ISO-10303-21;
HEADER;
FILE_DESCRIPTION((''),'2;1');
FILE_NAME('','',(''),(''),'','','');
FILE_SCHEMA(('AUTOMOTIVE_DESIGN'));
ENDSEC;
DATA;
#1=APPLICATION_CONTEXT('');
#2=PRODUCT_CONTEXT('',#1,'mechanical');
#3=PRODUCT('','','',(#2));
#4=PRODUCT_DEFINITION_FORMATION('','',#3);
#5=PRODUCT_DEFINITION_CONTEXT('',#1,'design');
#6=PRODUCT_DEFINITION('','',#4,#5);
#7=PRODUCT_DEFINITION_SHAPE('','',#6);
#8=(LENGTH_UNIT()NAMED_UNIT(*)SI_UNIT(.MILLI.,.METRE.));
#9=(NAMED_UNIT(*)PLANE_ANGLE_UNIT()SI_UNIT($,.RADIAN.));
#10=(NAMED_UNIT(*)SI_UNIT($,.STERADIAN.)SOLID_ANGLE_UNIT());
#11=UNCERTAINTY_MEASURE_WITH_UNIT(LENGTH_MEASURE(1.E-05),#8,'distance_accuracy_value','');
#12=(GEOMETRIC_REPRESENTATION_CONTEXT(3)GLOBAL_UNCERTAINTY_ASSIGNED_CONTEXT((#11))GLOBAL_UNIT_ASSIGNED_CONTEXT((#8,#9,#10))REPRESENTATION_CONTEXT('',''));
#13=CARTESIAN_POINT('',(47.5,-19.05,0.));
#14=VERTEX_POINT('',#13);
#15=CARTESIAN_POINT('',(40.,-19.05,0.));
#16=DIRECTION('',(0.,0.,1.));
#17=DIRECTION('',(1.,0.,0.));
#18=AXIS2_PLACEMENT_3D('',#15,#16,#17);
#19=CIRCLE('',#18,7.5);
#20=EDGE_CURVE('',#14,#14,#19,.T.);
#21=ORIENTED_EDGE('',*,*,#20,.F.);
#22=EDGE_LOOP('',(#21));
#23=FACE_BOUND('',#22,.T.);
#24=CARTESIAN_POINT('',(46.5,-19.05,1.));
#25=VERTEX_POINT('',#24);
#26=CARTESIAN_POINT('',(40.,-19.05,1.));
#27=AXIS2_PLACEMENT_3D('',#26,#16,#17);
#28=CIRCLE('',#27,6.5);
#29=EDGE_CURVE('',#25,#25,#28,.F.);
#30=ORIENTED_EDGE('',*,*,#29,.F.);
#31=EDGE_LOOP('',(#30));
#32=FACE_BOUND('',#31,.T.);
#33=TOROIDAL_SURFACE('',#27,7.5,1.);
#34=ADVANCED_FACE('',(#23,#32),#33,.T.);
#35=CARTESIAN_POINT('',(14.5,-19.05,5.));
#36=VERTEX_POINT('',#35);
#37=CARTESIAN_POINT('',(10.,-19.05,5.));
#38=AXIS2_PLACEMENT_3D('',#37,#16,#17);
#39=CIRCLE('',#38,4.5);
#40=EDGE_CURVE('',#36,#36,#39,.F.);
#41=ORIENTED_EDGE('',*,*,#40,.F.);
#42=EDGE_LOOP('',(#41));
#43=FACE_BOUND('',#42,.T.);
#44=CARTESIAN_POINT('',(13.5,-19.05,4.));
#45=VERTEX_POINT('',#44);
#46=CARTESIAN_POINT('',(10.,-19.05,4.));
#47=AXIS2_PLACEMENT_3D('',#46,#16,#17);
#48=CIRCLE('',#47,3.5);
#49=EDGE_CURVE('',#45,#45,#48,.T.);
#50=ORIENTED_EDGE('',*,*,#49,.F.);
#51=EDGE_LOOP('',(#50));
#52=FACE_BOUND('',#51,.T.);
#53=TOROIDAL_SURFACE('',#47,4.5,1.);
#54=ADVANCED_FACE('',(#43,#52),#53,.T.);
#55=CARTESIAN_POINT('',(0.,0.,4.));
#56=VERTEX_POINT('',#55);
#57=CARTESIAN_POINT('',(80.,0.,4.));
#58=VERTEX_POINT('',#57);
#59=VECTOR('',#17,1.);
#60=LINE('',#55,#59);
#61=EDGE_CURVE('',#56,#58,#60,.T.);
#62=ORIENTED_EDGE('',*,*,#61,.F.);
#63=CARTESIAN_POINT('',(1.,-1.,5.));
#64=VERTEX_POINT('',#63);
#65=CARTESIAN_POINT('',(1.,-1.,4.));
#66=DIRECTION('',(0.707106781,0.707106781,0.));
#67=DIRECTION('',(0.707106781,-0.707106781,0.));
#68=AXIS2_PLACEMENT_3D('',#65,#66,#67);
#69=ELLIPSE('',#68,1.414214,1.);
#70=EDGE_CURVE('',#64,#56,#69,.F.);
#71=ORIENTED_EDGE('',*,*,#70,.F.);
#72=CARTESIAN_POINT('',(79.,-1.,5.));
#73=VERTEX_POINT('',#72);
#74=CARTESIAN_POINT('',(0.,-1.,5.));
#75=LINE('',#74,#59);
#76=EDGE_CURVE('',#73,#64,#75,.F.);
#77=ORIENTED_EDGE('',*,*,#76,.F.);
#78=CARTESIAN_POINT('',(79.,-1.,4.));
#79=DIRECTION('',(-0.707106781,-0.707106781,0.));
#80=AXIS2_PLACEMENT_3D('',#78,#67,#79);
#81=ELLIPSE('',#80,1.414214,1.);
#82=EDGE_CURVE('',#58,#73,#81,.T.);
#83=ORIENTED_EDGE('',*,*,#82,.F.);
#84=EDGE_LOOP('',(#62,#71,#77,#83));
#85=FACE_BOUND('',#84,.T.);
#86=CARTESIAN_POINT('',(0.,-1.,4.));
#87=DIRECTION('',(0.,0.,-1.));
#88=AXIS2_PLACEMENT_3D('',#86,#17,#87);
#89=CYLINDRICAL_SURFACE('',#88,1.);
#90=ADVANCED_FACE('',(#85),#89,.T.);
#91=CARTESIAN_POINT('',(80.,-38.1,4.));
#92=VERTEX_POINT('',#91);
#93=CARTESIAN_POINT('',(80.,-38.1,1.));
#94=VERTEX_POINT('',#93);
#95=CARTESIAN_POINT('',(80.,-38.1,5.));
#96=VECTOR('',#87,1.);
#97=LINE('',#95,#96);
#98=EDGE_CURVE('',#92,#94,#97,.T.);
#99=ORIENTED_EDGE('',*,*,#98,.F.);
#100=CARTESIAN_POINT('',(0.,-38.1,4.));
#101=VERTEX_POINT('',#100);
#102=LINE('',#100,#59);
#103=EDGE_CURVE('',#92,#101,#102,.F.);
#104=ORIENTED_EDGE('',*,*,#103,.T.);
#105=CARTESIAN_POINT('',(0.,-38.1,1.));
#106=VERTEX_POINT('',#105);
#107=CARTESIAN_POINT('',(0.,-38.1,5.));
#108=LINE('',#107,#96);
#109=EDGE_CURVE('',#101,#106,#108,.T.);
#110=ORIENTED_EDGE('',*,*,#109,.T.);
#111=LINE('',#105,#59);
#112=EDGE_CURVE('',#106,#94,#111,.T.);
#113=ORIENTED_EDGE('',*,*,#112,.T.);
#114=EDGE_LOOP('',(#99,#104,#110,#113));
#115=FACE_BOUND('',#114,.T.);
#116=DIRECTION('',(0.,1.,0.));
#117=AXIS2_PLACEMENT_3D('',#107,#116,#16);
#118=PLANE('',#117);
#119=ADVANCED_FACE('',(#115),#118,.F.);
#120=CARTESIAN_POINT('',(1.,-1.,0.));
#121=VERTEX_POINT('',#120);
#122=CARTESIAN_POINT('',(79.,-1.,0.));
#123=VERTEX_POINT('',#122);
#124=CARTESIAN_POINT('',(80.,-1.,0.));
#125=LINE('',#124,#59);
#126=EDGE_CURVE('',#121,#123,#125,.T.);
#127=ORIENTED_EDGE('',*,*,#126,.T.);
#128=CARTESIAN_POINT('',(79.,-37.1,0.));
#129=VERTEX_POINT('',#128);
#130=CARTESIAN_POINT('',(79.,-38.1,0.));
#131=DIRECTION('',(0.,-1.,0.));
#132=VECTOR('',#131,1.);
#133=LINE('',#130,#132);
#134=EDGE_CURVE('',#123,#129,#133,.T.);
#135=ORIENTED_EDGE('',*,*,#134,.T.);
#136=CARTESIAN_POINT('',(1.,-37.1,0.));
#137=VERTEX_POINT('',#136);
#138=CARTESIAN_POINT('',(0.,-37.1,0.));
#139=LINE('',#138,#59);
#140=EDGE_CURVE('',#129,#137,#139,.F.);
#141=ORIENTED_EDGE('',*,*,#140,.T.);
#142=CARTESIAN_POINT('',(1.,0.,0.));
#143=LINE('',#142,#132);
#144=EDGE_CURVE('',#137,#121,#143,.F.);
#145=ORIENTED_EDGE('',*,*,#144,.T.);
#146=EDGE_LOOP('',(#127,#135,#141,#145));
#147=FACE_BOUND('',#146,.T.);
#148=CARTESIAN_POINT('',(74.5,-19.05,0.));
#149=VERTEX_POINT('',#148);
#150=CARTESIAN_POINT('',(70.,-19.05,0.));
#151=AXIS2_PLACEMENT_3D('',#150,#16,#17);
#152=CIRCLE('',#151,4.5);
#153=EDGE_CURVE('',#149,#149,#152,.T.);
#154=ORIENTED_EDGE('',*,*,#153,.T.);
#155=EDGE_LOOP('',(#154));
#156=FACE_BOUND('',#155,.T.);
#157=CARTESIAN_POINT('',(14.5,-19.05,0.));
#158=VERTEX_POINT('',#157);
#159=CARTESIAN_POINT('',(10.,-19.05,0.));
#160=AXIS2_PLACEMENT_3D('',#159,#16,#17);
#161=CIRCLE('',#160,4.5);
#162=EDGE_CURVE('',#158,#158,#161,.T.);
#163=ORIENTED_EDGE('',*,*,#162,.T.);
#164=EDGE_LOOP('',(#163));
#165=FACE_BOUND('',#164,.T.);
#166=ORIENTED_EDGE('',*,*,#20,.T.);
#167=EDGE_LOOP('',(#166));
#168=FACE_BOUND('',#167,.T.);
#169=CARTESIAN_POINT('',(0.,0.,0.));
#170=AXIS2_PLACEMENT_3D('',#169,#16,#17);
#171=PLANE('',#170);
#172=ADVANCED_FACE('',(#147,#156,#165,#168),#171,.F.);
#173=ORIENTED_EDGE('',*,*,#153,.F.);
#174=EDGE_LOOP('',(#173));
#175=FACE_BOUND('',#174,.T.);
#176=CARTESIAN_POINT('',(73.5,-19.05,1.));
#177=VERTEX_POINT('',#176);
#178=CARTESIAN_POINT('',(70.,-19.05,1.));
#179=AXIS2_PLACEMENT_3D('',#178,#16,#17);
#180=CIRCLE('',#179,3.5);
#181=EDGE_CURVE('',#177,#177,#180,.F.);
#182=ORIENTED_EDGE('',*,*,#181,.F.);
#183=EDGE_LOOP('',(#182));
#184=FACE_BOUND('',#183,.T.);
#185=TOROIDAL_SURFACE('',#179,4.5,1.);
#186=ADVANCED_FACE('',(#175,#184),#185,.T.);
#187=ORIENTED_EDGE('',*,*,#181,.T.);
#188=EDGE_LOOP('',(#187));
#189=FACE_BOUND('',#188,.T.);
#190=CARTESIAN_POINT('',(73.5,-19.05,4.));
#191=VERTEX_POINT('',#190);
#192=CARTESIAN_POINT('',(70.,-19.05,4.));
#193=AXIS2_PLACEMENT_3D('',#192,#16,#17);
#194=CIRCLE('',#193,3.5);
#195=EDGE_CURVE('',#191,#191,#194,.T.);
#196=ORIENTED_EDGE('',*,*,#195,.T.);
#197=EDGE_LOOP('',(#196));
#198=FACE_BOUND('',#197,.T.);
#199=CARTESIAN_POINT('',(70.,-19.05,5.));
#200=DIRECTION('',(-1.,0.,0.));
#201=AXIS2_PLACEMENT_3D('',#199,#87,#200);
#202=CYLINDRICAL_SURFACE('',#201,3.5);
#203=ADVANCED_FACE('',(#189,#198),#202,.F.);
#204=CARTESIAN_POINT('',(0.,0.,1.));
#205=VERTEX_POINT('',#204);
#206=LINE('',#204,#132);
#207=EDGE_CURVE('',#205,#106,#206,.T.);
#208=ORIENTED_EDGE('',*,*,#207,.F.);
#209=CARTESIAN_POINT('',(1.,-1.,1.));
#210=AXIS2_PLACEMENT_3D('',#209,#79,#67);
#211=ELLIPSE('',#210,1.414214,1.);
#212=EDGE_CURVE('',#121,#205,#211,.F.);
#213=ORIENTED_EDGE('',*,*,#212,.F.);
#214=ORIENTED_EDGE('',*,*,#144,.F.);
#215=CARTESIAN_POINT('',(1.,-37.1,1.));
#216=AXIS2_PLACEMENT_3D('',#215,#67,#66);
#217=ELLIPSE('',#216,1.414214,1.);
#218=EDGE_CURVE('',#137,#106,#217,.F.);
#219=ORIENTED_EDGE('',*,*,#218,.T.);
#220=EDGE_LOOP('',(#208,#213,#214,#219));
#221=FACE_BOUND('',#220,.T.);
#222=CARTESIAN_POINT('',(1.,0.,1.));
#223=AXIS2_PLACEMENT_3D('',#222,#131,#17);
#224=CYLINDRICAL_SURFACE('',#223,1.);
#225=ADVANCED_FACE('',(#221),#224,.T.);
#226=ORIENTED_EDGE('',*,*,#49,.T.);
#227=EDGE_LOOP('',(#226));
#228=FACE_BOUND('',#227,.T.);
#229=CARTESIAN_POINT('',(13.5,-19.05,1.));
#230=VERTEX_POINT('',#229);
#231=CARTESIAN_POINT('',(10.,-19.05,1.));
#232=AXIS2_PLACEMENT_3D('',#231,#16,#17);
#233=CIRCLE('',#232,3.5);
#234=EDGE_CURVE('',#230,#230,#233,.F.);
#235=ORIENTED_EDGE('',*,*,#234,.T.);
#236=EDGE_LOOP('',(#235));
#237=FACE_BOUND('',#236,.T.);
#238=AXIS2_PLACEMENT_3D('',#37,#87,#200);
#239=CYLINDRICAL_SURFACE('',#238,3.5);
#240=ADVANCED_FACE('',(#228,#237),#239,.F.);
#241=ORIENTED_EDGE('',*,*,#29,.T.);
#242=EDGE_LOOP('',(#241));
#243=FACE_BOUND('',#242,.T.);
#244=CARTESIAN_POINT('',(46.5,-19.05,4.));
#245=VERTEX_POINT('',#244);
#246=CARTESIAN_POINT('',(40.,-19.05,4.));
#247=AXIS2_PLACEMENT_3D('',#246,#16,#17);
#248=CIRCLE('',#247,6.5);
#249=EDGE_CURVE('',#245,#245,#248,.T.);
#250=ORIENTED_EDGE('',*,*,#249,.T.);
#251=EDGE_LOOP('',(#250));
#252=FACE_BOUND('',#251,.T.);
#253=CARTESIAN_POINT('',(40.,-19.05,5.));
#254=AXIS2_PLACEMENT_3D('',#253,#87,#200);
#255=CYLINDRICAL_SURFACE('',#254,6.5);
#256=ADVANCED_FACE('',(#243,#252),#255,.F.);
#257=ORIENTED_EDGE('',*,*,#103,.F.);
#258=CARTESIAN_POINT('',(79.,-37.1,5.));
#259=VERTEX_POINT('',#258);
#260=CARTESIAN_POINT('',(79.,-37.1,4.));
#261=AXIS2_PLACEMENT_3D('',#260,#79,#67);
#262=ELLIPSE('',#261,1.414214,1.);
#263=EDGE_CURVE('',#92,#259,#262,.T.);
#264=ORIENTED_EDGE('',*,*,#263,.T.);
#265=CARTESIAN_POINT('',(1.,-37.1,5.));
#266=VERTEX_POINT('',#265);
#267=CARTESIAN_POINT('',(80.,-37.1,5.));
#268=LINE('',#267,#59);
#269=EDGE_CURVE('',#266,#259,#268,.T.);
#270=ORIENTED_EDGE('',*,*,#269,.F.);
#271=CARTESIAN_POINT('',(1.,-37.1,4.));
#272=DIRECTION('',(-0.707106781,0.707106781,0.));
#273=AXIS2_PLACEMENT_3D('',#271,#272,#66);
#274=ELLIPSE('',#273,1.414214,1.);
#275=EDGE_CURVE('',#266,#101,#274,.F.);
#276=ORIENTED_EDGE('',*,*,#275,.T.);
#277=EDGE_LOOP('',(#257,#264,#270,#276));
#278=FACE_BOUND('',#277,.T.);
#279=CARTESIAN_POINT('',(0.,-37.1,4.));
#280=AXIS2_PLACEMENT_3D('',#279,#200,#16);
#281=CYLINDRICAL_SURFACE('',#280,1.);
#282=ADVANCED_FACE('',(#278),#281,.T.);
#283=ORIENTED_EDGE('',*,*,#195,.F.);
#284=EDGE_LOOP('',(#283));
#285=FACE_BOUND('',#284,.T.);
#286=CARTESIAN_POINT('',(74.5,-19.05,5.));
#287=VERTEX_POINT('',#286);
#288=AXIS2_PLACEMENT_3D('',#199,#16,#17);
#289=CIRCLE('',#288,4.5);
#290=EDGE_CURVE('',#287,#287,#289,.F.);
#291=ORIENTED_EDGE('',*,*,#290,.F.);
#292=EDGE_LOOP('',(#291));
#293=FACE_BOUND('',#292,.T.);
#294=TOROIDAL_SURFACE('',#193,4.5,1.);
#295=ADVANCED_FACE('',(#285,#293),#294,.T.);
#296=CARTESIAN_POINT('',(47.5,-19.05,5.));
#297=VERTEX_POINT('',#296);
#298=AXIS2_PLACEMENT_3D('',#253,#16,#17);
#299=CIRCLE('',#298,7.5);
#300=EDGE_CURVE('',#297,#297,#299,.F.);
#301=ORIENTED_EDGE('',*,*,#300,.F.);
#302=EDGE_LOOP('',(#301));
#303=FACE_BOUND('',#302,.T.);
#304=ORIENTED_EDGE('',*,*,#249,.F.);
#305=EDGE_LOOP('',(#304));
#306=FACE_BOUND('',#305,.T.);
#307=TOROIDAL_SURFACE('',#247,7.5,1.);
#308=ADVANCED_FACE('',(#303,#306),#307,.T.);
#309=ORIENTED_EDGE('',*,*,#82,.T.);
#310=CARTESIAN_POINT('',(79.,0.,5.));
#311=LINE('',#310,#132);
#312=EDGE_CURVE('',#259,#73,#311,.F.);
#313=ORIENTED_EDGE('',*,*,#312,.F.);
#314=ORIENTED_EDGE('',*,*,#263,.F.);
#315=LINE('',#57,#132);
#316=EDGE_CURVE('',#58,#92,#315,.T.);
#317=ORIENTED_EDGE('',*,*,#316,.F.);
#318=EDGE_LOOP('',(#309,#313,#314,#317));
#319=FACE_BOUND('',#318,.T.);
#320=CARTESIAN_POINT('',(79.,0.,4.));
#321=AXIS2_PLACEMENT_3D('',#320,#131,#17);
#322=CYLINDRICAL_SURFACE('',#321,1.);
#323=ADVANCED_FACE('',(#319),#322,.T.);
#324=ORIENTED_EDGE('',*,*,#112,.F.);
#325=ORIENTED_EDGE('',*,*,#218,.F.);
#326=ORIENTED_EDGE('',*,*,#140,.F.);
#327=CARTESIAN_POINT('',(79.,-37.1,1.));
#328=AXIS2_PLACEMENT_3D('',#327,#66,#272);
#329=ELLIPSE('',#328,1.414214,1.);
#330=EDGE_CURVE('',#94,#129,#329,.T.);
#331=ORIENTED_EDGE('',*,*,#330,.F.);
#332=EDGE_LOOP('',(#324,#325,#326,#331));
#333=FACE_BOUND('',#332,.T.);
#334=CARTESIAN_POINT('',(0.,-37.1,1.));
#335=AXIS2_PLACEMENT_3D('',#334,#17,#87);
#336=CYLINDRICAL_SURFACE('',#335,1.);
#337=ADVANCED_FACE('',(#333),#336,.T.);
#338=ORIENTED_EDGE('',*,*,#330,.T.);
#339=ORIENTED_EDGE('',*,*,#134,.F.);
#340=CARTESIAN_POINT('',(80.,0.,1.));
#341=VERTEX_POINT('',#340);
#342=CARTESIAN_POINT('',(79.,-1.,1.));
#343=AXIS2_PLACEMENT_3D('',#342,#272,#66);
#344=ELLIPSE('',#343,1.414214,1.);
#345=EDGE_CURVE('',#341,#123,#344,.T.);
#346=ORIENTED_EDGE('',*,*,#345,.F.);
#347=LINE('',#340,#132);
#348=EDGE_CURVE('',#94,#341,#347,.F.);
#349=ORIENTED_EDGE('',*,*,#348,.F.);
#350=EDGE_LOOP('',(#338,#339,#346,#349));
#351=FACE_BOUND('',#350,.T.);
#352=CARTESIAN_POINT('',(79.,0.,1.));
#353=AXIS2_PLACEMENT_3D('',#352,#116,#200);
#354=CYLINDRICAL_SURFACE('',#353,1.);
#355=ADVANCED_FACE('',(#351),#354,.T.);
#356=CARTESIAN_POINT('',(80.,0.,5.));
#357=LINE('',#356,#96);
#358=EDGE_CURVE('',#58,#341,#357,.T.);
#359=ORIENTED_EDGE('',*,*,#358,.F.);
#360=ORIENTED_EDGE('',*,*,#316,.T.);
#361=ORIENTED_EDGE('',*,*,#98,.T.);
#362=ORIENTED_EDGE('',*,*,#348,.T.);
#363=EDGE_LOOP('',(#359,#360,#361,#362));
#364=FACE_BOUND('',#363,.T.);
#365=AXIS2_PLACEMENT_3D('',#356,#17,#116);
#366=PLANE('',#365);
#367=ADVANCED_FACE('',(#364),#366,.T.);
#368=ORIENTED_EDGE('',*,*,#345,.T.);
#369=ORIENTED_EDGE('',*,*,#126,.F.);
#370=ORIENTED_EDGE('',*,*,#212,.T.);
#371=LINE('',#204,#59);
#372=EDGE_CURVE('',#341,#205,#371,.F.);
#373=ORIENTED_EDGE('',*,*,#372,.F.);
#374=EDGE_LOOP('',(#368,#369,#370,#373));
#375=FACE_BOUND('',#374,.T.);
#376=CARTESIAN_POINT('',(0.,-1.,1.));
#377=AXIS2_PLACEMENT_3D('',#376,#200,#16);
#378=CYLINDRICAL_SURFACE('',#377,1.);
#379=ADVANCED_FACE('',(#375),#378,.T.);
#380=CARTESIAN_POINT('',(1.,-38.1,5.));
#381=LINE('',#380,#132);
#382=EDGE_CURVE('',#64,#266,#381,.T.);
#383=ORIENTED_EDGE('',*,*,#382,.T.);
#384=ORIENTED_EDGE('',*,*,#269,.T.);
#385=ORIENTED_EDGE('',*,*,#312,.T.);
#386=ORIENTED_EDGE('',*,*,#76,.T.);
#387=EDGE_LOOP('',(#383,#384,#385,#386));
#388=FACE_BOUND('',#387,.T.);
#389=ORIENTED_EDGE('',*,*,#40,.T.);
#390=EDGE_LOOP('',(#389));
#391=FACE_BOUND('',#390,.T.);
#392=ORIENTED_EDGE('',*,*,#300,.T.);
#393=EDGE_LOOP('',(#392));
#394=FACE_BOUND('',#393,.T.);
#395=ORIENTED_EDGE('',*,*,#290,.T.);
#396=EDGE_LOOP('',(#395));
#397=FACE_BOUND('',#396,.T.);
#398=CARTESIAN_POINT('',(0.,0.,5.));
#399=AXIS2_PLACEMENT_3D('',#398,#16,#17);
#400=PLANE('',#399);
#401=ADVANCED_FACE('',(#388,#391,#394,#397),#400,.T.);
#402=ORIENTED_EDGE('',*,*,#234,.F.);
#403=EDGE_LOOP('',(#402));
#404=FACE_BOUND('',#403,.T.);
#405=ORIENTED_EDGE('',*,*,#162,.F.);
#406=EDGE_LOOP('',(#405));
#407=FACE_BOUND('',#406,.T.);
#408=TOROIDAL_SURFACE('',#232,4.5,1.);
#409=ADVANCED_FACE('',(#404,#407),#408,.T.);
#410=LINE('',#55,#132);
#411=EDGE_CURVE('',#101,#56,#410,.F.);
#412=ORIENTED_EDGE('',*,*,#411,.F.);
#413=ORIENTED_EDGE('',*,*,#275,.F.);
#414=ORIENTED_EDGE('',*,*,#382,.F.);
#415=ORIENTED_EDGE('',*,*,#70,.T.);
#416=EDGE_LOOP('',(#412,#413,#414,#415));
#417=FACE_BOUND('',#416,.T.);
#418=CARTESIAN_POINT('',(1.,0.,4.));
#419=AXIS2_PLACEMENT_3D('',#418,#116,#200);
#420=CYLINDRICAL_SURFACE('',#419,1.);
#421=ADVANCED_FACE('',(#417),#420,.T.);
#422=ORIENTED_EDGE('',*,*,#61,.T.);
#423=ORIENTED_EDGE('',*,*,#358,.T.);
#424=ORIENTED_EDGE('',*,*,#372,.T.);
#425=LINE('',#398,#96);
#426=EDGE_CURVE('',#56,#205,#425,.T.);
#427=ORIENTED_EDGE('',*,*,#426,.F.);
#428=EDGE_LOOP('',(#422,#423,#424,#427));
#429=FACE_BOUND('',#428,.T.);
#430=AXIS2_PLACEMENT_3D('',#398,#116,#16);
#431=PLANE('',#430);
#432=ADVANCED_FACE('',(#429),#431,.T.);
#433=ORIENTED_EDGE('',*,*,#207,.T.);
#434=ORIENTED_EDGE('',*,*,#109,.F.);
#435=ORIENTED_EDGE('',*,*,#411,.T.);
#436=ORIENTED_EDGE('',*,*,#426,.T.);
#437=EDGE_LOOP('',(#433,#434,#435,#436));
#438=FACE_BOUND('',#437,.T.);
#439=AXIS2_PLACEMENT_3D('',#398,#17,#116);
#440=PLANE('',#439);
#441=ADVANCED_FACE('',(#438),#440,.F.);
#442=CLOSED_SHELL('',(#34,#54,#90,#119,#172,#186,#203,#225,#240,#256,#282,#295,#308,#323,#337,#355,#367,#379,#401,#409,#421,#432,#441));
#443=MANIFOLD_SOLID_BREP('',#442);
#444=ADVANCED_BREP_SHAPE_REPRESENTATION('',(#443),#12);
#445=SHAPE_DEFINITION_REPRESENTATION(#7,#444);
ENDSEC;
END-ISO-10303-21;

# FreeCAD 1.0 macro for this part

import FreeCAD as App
import Part
import Sketcher
from FreeCAD import Vector


def edges_at(feature, points):
    """Names of the edges that pass closest to the given points."""
    edges = feature.Shape.Edges
    near = lambda p: min(range(len(edges)), key=lambda i: edges[i].distToShape(Part.Vertex(*p))[0])
    return sorted({f"Edge{near(p) + 1}" for p in points})

doc = App.newDocument("Part")
body = doc.addObject("PartDesign::Body", "Body")

# Sketch on XY plane
sketch1 = body.newObject("Sketcher::SketchObject", "Sketch")
sketch1.AttachmentSupport = (doc.getObject("XY_Plane"), [""])
sketch1.MapMode = "FlatFace"
sketch1.addGeometry([
    Part.LineSegment(Vector(0, 0, 0), Vector(0, -38.1, 0)),  # 0
    Part.LineSegment(Vector(0, -38.1, 0), Vector(80, -38.1, 0)),  # 1
    Part.LineSegment(Vector(80, -38.1, 0), Vector(80, 0, 0)),  # 2
    Part.LineSegment(Vector(80, 0, 0), Vector(0, 0, 0)),  # 3
    Part.Circle(Vector(10, -19.1, 0), Vector(0, 0, 1), 3.5),  # 4
    Part.Circle(Vector(40, -19.1, 0), Vector(0, 0, 1), 6.5),  # 5
    Part.Circle(Vector(70, -19.1, 0), Vector(0, 0, 1), 3.5),  # 6
], False)
sketch1.addConstraint([
    Sketcher.Constraint("Coincident", 0, 2, 1, 1),
    Sketcher.Constraint("Coincident", 1, 2, 2, 1),
    Sketcher.Constraint("Coincident", 2, 2, 3, 1),
    Sketcher.Constraint("Coincident", 3, 2, 0, 1),
    Sketcher.Constraint("Vertical", 0),
    Sketcher.Constraint("Horizontal", 1),
    Sketcher.Constraint("Vertical", 2),
    Sketcher.Constraint("Horizontal", 3),
    Sketcher.Constraint("Coincident", 3, 2, -1, 1),
    Sketcher.Constraint("Equal", 4, 6),
    Sketcher.Constraint("Horizontal", 4, 3, 5, 3),
    Sketcher.Constraint("Horizontal", 5, 3, 6, 3),
    Sketcher.Constraint("Diameter", 4, 7.0),
    Sketcher.Constraint("Diameter", 5, 13.0),
    Sketcher.Constraint("DistanceX", 1, 1, 1, 2, 80.0),
    Sketcher.Constraint("DistanceY", 0, 2, 0, 1, 38.1),
    Sketcher.Constraint("DistanceX", -1, 1, 4, 3, 10.0),
    Sketcher.Constraint("DistanceX", -1, 1, 5, 3, 40.0),
    Sketcher.Constraint("DistanceX", -1, 1, 6, 3, 70.0),
    Sketcher.Constraint("DistanceY", 4, 3, -1, 1, 19.05),
])
pad1 = body.newObject("PartDesign::Pad", "Pad")
pad1.Profile = sketch1
pad1.Length = 5
doc.recompute()

fillet = body.newObject("PartDesign::Fillet", "Fillet")
fillet.Base = (pad1, edges_at(pad1, [
    (33.5, -19.05, 0),
    (40, -38.1, 0),
    (0, -19.05, 0),
    (40, 0, 0),
    (80, -19.05, 0),
    (40, 0, 5),
    (0, -19.05, 5),
    (40, -38.1, 5),
    (33.5, -19.05, 5),
    (6.5, -19.05, 5),
    (66.5, -19.05, 5),
    (80, -19.05, 5),
    (66.5, -19.05, 0),
    (6.5, -19.05, 0),
]))
fillet.Radius = 1

doc.recompute()
